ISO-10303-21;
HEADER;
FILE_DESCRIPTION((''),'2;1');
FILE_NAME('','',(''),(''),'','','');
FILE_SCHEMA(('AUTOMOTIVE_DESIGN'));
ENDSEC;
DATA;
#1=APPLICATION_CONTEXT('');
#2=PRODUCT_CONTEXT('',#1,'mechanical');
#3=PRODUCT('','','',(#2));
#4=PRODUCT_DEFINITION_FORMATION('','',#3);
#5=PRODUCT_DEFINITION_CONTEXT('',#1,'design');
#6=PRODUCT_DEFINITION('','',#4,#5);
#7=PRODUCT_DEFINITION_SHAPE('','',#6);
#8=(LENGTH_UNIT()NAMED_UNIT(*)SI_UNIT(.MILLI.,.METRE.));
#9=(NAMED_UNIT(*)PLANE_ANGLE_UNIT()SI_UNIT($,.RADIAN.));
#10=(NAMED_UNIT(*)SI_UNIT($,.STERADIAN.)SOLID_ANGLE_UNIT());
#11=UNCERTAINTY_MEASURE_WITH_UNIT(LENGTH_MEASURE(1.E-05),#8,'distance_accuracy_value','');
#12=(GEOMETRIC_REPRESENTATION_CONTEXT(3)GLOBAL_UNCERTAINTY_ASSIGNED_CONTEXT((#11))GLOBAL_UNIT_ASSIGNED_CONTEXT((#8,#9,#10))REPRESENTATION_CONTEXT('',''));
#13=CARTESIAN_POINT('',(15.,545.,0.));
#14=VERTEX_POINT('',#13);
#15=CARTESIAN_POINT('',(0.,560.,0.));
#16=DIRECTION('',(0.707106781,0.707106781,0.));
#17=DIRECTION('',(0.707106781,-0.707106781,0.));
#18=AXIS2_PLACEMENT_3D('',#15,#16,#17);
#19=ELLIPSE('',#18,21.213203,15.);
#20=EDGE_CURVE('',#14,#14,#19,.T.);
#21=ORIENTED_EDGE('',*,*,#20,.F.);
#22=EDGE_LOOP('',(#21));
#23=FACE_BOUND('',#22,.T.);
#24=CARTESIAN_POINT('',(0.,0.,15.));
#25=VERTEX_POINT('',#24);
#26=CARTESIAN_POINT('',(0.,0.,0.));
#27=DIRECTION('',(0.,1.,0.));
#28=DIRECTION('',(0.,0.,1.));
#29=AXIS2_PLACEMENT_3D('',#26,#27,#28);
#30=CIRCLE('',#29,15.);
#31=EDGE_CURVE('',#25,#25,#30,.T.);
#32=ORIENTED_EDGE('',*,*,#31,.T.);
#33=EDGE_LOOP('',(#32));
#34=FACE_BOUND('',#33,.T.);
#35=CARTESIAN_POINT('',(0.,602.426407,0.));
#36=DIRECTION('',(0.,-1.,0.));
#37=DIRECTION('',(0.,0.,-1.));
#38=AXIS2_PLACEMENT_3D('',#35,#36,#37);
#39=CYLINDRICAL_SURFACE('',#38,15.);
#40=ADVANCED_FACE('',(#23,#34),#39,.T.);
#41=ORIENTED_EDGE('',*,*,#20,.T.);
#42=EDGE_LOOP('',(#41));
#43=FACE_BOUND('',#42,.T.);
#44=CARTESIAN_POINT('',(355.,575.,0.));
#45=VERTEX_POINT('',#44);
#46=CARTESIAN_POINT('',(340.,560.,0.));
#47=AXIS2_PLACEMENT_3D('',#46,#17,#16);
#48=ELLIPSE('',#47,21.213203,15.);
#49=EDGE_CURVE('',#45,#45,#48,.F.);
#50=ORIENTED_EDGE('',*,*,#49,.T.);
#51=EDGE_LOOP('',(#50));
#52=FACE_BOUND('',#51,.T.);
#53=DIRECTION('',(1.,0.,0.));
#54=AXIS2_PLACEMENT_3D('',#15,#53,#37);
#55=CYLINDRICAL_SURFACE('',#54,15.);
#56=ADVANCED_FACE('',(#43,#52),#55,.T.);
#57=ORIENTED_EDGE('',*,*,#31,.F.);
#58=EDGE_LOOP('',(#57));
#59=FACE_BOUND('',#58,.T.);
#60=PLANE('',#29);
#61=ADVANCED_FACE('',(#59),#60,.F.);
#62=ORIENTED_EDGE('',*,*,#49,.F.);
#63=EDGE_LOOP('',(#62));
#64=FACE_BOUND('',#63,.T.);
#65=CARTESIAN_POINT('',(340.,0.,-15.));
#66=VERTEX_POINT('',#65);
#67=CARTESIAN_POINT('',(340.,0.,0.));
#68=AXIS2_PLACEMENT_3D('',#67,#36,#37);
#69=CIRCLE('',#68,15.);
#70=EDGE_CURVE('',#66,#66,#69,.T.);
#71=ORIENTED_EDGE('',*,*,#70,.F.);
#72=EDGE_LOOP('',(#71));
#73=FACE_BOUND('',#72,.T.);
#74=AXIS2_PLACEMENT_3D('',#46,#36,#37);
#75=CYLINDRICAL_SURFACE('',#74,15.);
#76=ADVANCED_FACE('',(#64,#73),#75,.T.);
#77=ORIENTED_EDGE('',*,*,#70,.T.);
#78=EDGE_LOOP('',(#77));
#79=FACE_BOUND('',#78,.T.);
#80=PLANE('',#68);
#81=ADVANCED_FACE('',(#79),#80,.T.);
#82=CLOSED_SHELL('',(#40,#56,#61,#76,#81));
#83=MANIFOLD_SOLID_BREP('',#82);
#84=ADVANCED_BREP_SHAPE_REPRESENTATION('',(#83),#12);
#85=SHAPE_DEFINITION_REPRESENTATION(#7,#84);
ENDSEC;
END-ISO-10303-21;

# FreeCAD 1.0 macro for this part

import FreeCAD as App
import Part
import Sketcher
from FreeCAD import Vector

doc = App.newDocument("Part")
body = doc.addObject("PartDesign::Body", "Body")

# Sketch on XZ plane
sketch1 = body.newObject("Sketcher::SketchObject", "Sketch")
sketch1.AttachmentSupport = (doc.getObject("XZ_Plane"), [""])
sketch1.MapMode = "FlatFace"
sketch1.addGeometry(Part.Circle(Vector(0, 0, 0), Vector(0, 0, 1), 15), False)
sketch1.addConstraint([
    Sketcher.Constraint("Coincident", 0, 3, -1, 1),
    Sketcher.Constraint("Diameter", 0, 30.0),
])

# Sketch on XY plane
sketch2 = body.newObject("Sketcher::SketchObject", "Sketch001")
sketch2.AttachmentSupport = (doc.getObject("XY_Plane"), [""])
sketch2.MapMode = "FlatFace"
sketch2.addGeometry([
    Part.LineSegment(Vector(0, 0, 0), Vector(0, 560, 0)),
    Part.LineSegment(Vector(0, 560, 0), Vector(340, 560, 0)),
    Part.LineSegment(Vector(340, 560, 0), Vector(340, 0, 0)),
], False)
sketch2.addConstraint([
    Sketcher.Constraint("Coincident", 0, 2, 1, 1),
    Sketcher.Constraint("Coincident", 1, 2, 2, 1),
    Sketcher.Constraint("Vertical", 0),
    Sketcher.Constraint("Horizontal", 1),
    Sketcher.Constraint("Vertical", 2),
    Sketcher.Constraint("Coincident", 0, 1, -1, 1),
    Sketcher.Constraint("PointOnObject", 2, 2, -1),
    Sketcher.Constraint("DistanceX", 1, 1, 1, 2, 340.0),
    Sketcher.Constraint("DistanceY", 0, 1, 0, 2, 560.0),
])
doc.recompute()

additivepipe = body.newObject("PartDesign::AdditivePipe", "AdditivePipe")
additivepipe.Profile = sketch1
additivepipe.Spine = (sketch2, ["Edge1", "Edge2", "Edge3"])
additivepipe.Transition = "Right corner"

doc.recompute()
